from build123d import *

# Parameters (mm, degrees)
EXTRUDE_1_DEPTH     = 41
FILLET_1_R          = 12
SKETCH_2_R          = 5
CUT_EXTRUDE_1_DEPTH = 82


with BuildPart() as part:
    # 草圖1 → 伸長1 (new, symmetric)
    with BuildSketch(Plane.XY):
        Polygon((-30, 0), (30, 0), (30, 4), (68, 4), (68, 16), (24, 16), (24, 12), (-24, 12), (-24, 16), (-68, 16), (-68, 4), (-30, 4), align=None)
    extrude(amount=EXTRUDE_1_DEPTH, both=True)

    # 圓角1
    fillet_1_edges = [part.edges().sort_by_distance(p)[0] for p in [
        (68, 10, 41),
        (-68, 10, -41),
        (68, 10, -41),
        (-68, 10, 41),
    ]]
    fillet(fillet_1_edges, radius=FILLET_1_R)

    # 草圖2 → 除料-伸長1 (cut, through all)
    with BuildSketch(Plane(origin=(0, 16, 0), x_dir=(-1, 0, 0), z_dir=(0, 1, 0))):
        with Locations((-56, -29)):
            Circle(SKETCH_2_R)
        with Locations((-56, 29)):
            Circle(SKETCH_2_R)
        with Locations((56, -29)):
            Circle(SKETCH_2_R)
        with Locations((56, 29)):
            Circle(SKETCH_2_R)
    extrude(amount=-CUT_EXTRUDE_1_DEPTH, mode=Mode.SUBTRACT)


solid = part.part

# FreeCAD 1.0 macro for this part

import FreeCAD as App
import Part
import Sketcher
Q = App.Units.Quantity


def edges_at(feature, points):
    """Names of the edges that pass closest to the given points."""
    edges = feature.Shape.Edges
    near = lambda p: min(range(len(edges)), key=lambda i: edges[i].distToShape(Part.Vertex(*p))[0])
    return sorted({f"Edge{near(p) + 1}" for p in points})

doc = App.newDocument("Part")
body = doc.addObject("PartDesign::Body", "Body")

# Sketch on XY plane
sketch1 = body.newObject("Sketcher::SketchObject", "Sketch")
sketch1.AttachmentSupport = (doc.getObject("XY_Plane"), [""])
sketch1.MapMode = "FlatFace"
sketch1.addGeometry([
    Part.LineSegment(App.Vector(-30, 0, 0), App.Vector(30, 0, 0)),  # 0
    Part.LineSegment(App.Vector(30, 0, 0), App.Vector(30, 4, 0)),  # 1
    Part.LineSegment(App.Vector(30, 4, 0), App.Vector(68, 4, 0)),  # 2
    Part.LineSegment(App.Vector(68, 4, 0), App.Vector(68, 16, 0)),  # 3
    Part.LineSegment(App.Vector(68, 16, 0), App.Vector(24, 16, 0)),  # 4
    Part.LineSegment(App.Vector(24, 16, 0), App.Vector(24, 12, 0)),  # 5
    Part.LineSegment(App.Vector(24, 12, 0), App.Vector(-24, 12, 0)),  # 6
    Part.LineSegment(App.Vector(-24, 12, 0), App.Vector(-24, 16, 0)),  # 7
    Part.LineSegment(App.Vector(-24, 16, 0), App.Vector(-68, 16, 0)),  # 8
    Part.LineSegment(App.Vector(-68, 16, 0), App.Vector(-68, 4, 0)),  # 9
    Part.LineSegment(App.Vector(-68, 4, 0), App.Vector(-30, 4, 0)),  # 10
    Part.LineSegment(App.Vector(-30, 4, 0), App.Vector(-30, 0, 0)),  # 11
], False)
sketch1.addConstraint([
    Sketcher.Constraint("Coincident", 0, 2, 1, 1),
    Sketcher.Constraint("Coincident", 1, 2, 2, 1),
    Sketcher.Constraint("Coincident", 2, 2, 3, 1),
    Sketcher.Constraint("Coincident", 3, 2, 4, 1),
    Sketcher.Constraint("Coincident", 4, 2, 5, 1),
    Sketcher.Constraint("Coincident", 5, 2, 6, 1),
    Sketcher.Constraint("Coincident", 6, 2, 7, 1),
    Sketcher.Constraint("Coincident", 7, 2, 8, 1),
    Sketcher.Constraint("Coincident", 8, 2, 9, 1),
    Sketcher.Constraint("Coincident", 9, 2, 10, 1),
    Sketcher.Constraint("Coincident", 10, 2, 11, 1),
    Sketcher.Constraint("Coincident", 11, 2, 0, 1),
    Sketcher.Constraint("Horizontal", 0),
    Sketcher.Constraint("Vertical", 1),
    Sketcher.Constraint("Horizontal", 2),
    Sketcher.Constraint("Vertical", 3),
    Sketcher.Constraint("Horizontal", 4),
    Sketcher.Constraint("Vertical", 5),
    Sketcher.Constraint("Horizontal", 6),
    Sketcher.Constraint("Vertical", 7),
    Sketcher.Constraint("Horizontal", 8),
    Sketcher.Constraint("Vertical", 9),
    Sketcher.Constraint("Horizontal", 10),
    Sketcher.Constraint("Vertical", 11),
    Sketcher.Constraint("Symmetric", 0, 2, 11, 2, -1, 1),
    Sketcher.Constraint("Symmetric", 4, 2, 7, 2, -2),
    Sketcher.Constraint("Symmetric", 2, 2, 9, 2, -2),
    Sketcher.Constraint("Equal", 1, 5),
    Sketcher.Constraint("DistanceX", 0, 1, 0, 2, Q("60 mm")),
    Sketcher.Constraint("DistanceX", 2, 1, 2, 2, Q("38 mm")),
    Sketcher.Constraint("DistanceX", 4, 2, 4, 1, Q("44 mm")),
    Sketcher.Constraint("DistanceY", 1, 1, 1, 2, Q("4 mm")),
    Sketcher.Constraint("DistanceY", 3, 1, 3, 2, Q("12 mm")),
])
pad1 = body.newObject("PartDesign::Pad", "Pad")
pad1.Profile = sketch1
pad1.Length = 82
pad1.Midplane = True
doc.recompute()

fillet = body.newObject("PartDesign::Fillet", "Fillet")
fillet.Base = (pad1, edges_at(pad1, [
    (68, 10, 41),
    (-68, 10, -41),
    (68, 10, -41),
    (-68, 10, 41),
]))
fillet.Radius = 12

# Sketch on XZ plane
sketch2 = body.newObject("Sketcher::SketchObject", "Sketch001")
sketch2.AttachmentSupport = (doc.getObject("XZ_Plane"), [""])
sketch2.MapMode = "FlatFace"
sketch2.AttachmentOffset = App.Placement(App.Vector(0, 0, -16), App.Rotation())
sketch2.addGeometry([
    Part.Circle(App.Vector(56, -29, 0), App.Vector(0, 0, 1), 5),
    Part.Circle(App.Vector(56, 29, 0), App.Vector(0, 0, 1), 5),
    Part.Circle(App.Vector(-56, -29, 0), App.Vector(0, 0, 1), 5),
    Part.Circle(App.Vector(-56, 29, 0), App.Vector(0, 0, 1), 5),
], False)
sketch2.addConstraint([
    Sketcher.Constraint("Equal", 0, 1),
    Sketcher.Constraint("Equal", 1, 2),
    Sketcher.Constraint("Equal", 2, 3),
    Sketcher.Constraint("Symmetric", 1, 3, 2, 3, -1, 1),
    Sketcher.Constraint("Symmetric", 0, 3, 3, 3, -1, 1),
    Sketcher.Constraint("Symmetric", 0, 3, 2, 3, -2),
    Sketcher.Constraint("Diameter", 0, Q("10 mm")),
    Sketcher.Constraint("DistanceX", -1, 1, 0, 3, Q("56 mm")),
    Sketcher.Constraint("DistanceY", 0, 3, -1, 1, Q("29 mm")),
])
pocket1 = body.newObject("PartDesign::Pocket", "Pocket")
pocket1.Profile = sketch2
pocket1.Type = "ThroughAll"
pocket1.Reversed = True

doc.recompute()
